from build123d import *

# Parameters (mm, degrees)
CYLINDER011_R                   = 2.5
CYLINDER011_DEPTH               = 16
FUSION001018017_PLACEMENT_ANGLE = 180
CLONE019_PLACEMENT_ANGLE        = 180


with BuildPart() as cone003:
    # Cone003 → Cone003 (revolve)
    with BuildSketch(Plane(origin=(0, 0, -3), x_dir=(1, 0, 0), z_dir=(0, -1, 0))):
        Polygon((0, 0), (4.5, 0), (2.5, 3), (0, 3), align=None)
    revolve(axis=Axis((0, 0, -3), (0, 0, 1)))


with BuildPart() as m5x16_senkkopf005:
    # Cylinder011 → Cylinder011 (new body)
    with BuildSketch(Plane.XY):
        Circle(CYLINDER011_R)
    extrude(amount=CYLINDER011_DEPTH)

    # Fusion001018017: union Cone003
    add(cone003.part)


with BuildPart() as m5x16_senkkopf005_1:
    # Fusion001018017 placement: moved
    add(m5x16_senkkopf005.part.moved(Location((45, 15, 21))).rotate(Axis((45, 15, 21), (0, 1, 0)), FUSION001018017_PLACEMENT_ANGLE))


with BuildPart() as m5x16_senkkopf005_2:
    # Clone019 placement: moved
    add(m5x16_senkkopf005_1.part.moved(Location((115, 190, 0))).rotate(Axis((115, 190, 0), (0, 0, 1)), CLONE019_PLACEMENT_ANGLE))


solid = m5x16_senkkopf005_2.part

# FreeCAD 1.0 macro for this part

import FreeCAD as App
import Part
import Sketcher

V = App.Vector

doc = App.newDocument("Part")
params = doc.addObject("Spreadsheet::Sheet", "Params")
for row, (alias, value) in enumerate([
    ("sketch1_height", "3 mm"),
    ("sketch1_width", "4.5 mm"),
    ("sketch1_width2", "2.5 mm"),
    ("revolution_angle", "360 deg"),
    ("sketch2_diameter", "5 mm"),
    ("pad1_length", "16 mm"),
], start=1):
    params.set(f"A{row}", alias)
    params.set(f"B{row}", "=" + value)
    params.setAlias(f"B{row}", alias)

body = doc.addObject("PartDesign::Body", "Body")

# Sketch on XZ plane
sketch1 = body.newObject("Sketcher::SketchObject", "Sketch")
sketch1.AttachmentSupport = (doc.getObject("XZ_Plane"), [""])
sketch1.MapMode = "FlatFace"
sketch1.addGeometry([
    Part.LineSegment(V(0, -3, 0), V(4.5, -3, 0)),
    Part.LineSegment(V(4.5, -3, 0), V(2.5, 0, 0)),
    Part.LineSegment(V(2.5, 0, 0), V(0, 0, 0)),
    Part.LineSegment(V(0, 0, 0), V(0, -3, 0)),
], False)
sketch1.addConstraint([
    Sketcher.Constraint("Coincident", 0, 2, 1, 1),
    Sketcher.Constraint("Coincident", 1, 2, 2, 1),
    Sketcher.Constraint("Coincident", 2, 2, 3, 1),
    Sketcher.Constraint("Coincident", 3, 2, 0, 1),
    Sketcher.Constraint("Horizontal", 0),
    Sketcher.Constraint("Horizontal", 2),
    Sketcher.Constraint("Vertical", 3),
    Sketcher.Constraint("Coincident", 2, 2, -1, 1),
    Sketcher.Constraint("DistanceY", 3, 2, 3, 1, 3.0),
    Sketcher.Constraint("DistanceX", 0, 1, 0, 2, 4.5),
    Sketcher.Constraint("DistanceX", 2, 2, 2, 1, 2.5),
])
sketch1.setExpression("Constraints[8]", "Params.sketch1_height")
sketch1.setExpression("Constraints[9]", "Params.sketch1_width")
sketch1.setExpression("Constraints[10]", "Params.sketch1_width2")
revolution = body.newObject("PartDesign::Revolution", "Revolution")
revolution.Profile = sketch1
revolution.ReferenceAxis = (sketch1, ["V_Axis"])
revolution.setExpression("Angle", "Params.revolution_angle")
body2 = doc.addObject("PartDesign::Body", "Body001")

# Sketch on XY plane
sketch2 = body2.newObject("Sketcher::SketchObject", "Sketch001")
sketch2.AttachmentSupport = (doc.getObject("XY_Plane001"), [""])
sketch2.MapMode = "FlatFace"
sketch2.addGeometry(Part.Circle(V(0, 0, 0), V(0, 0, 1), 2.5), False)
sketch2.addConstraint([
    Sketcher.Constraint("Coincident", 0, 3, -1, 1),
    Sketcher.Constraint("Diameter", 0, 5.0),
])
sketch2.setExpression("Constraints[1]", "Params.sketch2_diameter")
pad1 = body2.newObject("PartDesign::Pad", "Pad")
pad1.Profile = sketch2
pad1.setExpression("Length", "Params.pad1_length")
doc.recompute()

boolean = body2.newObject("PartDesign::Boolean", "Boolean")
boolean.Type = "Fuse"
boolean.addObjects([body])
body3 = doc.addObject("PartDesign::Body", "Body002")
doc.recompute()

body2.Placement = App.Placement(V(45, 15, 21), App.Rotation(V(0, 1, 0), 180))
boolean2 = body3.newObject("PartDesign::Boolean", "Boolean001")
boolean2.Type = "Fuse"
boolean2.addObjects([body2])
body4 = doc.addObject("PartDesign::Body", "Body003")
doc.recompute()

body3.Placement = App.Placement(V(115, 190, 0), App.Rotation(V(0, 0, 1), 180))
boolean3 = body4.newObject("PartDesign::Boolean", "Boolean002")
boolean3.Type = "Fuse"
boolean3.addObjects([body3])

doc.recompute()
